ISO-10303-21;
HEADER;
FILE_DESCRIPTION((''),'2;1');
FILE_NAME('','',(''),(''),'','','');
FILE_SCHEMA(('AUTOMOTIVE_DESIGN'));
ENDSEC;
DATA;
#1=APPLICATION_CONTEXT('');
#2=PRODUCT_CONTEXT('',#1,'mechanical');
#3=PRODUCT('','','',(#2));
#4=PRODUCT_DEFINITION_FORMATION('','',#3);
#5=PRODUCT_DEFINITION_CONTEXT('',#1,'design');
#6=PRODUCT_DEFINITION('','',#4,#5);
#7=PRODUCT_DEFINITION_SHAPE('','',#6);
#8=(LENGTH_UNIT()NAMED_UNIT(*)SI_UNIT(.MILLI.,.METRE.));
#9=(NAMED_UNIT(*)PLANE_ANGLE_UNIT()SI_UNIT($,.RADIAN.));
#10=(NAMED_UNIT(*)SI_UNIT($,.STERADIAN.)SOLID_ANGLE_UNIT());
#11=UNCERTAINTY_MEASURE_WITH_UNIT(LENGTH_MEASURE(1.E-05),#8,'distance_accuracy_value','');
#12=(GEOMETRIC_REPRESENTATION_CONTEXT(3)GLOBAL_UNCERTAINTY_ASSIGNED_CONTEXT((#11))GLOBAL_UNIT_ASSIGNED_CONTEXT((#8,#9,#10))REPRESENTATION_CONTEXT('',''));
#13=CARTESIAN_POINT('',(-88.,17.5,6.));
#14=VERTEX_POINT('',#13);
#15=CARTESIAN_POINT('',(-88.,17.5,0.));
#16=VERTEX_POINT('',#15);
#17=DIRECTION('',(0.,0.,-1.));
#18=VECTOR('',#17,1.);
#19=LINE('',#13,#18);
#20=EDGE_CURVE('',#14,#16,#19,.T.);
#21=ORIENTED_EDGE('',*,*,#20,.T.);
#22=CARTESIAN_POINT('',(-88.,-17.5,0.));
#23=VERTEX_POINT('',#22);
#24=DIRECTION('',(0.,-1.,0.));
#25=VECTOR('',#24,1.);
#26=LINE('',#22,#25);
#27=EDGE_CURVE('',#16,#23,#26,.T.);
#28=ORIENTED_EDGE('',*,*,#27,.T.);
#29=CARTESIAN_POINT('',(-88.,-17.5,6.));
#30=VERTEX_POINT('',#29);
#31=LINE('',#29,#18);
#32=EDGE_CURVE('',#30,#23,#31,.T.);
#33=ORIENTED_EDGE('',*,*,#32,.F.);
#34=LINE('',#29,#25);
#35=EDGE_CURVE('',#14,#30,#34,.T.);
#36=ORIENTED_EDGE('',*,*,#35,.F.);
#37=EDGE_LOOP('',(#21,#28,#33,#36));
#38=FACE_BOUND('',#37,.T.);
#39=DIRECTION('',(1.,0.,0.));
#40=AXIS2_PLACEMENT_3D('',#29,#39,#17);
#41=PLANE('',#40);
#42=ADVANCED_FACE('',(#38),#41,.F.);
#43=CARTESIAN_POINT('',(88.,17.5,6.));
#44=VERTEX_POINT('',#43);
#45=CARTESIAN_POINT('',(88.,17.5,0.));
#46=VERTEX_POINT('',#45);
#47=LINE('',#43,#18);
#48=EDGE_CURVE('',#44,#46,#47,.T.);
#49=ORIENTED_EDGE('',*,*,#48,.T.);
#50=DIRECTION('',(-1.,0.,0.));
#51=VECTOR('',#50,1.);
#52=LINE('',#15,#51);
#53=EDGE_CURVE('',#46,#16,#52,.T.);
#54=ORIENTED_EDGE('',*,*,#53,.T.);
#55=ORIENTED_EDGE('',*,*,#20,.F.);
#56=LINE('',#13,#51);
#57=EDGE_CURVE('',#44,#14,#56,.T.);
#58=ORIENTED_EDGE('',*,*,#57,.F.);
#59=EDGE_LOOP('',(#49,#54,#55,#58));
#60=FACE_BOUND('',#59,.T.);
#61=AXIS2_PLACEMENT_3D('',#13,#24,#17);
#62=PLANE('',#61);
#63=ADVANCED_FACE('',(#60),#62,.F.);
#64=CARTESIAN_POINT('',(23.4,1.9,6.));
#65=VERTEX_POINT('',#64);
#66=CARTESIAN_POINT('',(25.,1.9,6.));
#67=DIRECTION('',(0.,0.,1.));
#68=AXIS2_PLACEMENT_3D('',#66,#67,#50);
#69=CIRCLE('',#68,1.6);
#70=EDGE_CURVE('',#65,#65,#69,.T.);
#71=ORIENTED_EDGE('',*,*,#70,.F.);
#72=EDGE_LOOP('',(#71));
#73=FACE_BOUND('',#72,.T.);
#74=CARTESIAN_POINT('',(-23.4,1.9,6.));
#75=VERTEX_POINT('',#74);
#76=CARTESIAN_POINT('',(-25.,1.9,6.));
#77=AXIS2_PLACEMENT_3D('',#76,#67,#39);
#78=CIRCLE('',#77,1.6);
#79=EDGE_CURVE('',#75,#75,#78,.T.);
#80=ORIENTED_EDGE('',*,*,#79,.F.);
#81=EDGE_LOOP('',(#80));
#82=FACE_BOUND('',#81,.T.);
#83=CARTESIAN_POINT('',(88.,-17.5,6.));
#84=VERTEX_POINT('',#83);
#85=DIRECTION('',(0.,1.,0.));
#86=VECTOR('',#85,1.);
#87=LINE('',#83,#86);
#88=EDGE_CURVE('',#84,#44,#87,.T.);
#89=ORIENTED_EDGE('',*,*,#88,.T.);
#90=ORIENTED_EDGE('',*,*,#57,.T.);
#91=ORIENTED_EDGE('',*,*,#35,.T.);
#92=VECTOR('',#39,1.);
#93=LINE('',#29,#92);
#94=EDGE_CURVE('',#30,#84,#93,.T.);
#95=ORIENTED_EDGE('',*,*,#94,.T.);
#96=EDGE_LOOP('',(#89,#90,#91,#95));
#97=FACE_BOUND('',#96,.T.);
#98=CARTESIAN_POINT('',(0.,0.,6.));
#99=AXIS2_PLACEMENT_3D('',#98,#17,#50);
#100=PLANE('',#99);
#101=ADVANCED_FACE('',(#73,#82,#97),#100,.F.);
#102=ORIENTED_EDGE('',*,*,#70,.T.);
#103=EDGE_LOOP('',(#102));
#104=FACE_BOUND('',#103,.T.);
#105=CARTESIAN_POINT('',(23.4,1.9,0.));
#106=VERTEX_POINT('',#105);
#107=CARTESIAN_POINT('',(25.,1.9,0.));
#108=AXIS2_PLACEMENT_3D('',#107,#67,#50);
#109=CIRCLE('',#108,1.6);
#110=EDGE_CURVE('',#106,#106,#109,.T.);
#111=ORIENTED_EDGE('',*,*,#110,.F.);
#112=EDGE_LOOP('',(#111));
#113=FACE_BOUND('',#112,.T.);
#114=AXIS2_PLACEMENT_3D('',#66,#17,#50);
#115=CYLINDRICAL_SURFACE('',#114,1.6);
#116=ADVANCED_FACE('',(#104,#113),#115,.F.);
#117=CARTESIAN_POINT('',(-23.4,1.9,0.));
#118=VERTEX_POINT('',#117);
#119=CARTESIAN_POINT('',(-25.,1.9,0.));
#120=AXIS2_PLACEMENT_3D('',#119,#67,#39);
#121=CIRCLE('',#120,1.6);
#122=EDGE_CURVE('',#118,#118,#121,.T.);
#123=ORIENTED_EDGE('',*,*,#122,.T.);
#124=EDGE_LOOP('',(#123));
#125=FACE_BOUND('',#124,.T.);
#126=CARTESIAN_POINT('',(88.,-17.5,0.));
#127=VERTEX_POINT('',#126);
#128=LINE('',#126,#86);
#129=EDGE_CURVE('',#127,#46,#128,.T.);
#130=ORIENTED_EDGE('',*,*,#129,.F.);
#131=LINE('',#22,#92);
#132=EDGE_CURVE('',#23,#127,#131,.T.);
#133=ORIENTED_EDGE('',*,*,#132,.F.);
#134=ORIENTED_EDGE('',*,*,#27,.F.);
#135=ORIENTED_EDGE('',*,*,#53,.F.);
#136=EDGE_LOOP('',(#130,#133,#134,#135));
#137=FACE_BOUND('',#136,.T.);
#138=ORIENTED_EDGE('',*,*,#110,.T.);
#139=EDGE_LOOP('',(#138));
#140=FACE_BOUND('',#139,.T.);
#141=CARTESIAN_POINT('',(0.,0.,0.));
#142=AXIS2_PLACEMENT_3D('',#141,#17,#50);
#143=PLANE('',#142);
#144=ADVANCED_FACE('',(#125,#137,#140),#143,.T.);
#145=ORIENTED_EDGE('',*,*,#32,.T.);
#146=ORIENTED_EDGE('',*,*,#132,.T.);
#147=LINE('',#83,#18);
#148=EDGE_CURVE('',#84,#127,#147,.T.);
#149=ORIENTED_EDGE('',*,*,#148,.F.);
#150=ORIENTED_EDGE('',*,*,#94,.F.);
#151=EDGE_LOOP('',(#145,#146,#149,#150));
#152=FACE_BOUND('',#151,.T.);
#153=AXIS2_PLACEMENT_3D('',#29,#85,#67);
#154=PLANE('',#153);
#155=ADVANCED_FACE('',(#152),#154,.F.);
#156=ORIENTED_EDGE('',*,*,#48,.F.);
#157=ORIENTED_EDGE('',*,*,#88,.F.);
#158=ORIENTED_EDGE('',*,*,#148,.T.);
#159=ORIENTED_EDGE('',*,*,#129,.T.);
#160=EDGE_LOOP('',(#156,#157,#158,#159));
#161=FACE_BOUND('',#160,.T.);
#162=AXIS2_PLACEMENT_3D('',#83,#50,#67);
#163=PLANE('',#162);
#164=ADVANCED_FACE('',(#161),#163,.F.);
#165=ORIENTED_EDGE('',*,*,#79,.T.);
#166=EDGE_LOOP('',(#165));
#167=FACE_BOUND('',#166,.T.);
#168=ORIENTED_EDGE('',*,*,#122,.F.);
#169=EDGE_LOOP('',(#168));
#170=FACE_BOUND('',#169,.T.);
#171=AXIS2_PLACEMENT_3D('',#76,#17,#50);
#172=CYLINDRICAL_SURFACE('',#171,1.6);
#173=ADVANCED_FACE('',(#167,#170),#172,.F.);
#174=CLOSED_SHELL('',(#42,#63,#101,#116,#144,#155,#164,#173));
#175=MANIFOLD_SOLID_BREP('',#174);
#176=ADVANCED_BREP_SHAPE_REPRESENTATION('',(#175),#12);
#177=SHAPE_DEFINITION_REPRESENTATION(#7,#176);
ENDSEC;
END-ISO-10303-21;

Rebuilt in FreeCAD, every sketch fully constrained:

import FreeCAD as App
import Part
import Sketcher

V = App.Vector
Q = App.Units.Quantity

doc = App.newDocument("Part")
params = doc.addObject("Spreadsheet::Sheet", "Params")
for row, (alias, value) in enumerate([
    ("sketch1_diameter", "3.2 mm"),
    ("sketch1_width", "176 mm"),
    ("sketch1_height", "35 mm"),
    ("pad1_length", "6 mm"),
], start=1):
    params.set(f"A{row}", alias)
    params.set(f"B{row}", "=" + value)
    params.setAlias(f"B{row}", alias)

body = doc.addObject("PartDesign::Body", "Body")

sketch1 = body.newObject("Sketcher::SketchObject", "Sketch")
sketch1.AttachmentSupport = (doc.getObject("XY_Plane"), [""])
sketch1.MapMode = "FlatFace"
sketch1.addGeometry(Part.LineSegment(V(-88, 17.5, 0), V(-88, -17.5, 0)), False)
sketch1.addGeometry(Part.LineSegment(V(-88, -17.5, 0), V(88, -17.5, 0)), False)
sketch1.addGeometry(Part.LineSegment(V(88, -17.5, 0), V(88, 17.5, 0)), False)
sketch1.addGeometry(Part.LineSegment(V(88, 17.5, 0), V(-88, 17.5, 0)), False)
sketch1.addGeometry(Part.Circle(V(-25, 1.9, 0), V(0, 0, 1), 1.6), False)
sketch1.addGeometry(Part.Circle(V(25, 1.9, 0), V(0, 0, 1), 1.6), False)
sketch1.addConstraint(Sketcher.Constraint("Coincident", 0, 2, 1, 1))
sketch1.addConstraint(Sketcher.Constraint("Coincident", 1, 2, 2, 1))
sketch1.addConstraint(Sketcher.Constraint("Coincident", 2, 2, 3, 1))
sketch1.addConstraint(Sketcher.Constraint("Coincident", 3, 2, 0, 1))
sketch1.addConstraint(Sketcher.Constraint("Vertical", 0))
sketch1.addConstraint(Sketcher.Constraint("Horizontal", 1))
sketch1.addConstraint(Sketcher.Constraint("Vertical", 2))
sketch1.addConstraint(Sketcher.Constraint("Horizontal", 3))
sketch1.addConstraint(Sketcher.Constraint("Equal", 4, 5))
sketch1.addConstraint(Sketcher.Constraint("Symmetric", 0, 2, 2, 2, -1, 1))
sketch1.addConstraint(Sketcher.Constraint("Symmetric", 4, 3, 5, 3, -2))
sketch1.addConstraint(Sketcher.Constraint("Diameter", 4, Q("3.2 mm")))
sketch1.addConstraint(Sketcher.Constraint("DistanceX", 1, 1, 1, 2, Q("176 mm")))
sketch1.addConstraint(Sketcher.Constraint("DistanceY", 0, 2, 0, 1, Q("35 mm")))
sketch1.addConstraint(Sketcher.Constraint("DistanceX", 4, 3, -1, 1, Q("25 mm")))
sketch1.addConstraint(Sketcher.Constraint("DistanceY", -1, 1, 4, 3, Q("1.9 mm")))
sketch1.setExpression("Constraints[11]", "Params.sketch1_diameter")
sketch1.setExpression("Constraints[12]", "Params.sketch1_width")
sketch1.setExpression("Constraints[13]", "Params.sketch1_height")
pad1 = body.newObject("PartDesign::Pad", "Pad")
pad1.Profile = sketch1
pad1.setExpression("Length", "Params.pad1_length")

doc.recompute()
